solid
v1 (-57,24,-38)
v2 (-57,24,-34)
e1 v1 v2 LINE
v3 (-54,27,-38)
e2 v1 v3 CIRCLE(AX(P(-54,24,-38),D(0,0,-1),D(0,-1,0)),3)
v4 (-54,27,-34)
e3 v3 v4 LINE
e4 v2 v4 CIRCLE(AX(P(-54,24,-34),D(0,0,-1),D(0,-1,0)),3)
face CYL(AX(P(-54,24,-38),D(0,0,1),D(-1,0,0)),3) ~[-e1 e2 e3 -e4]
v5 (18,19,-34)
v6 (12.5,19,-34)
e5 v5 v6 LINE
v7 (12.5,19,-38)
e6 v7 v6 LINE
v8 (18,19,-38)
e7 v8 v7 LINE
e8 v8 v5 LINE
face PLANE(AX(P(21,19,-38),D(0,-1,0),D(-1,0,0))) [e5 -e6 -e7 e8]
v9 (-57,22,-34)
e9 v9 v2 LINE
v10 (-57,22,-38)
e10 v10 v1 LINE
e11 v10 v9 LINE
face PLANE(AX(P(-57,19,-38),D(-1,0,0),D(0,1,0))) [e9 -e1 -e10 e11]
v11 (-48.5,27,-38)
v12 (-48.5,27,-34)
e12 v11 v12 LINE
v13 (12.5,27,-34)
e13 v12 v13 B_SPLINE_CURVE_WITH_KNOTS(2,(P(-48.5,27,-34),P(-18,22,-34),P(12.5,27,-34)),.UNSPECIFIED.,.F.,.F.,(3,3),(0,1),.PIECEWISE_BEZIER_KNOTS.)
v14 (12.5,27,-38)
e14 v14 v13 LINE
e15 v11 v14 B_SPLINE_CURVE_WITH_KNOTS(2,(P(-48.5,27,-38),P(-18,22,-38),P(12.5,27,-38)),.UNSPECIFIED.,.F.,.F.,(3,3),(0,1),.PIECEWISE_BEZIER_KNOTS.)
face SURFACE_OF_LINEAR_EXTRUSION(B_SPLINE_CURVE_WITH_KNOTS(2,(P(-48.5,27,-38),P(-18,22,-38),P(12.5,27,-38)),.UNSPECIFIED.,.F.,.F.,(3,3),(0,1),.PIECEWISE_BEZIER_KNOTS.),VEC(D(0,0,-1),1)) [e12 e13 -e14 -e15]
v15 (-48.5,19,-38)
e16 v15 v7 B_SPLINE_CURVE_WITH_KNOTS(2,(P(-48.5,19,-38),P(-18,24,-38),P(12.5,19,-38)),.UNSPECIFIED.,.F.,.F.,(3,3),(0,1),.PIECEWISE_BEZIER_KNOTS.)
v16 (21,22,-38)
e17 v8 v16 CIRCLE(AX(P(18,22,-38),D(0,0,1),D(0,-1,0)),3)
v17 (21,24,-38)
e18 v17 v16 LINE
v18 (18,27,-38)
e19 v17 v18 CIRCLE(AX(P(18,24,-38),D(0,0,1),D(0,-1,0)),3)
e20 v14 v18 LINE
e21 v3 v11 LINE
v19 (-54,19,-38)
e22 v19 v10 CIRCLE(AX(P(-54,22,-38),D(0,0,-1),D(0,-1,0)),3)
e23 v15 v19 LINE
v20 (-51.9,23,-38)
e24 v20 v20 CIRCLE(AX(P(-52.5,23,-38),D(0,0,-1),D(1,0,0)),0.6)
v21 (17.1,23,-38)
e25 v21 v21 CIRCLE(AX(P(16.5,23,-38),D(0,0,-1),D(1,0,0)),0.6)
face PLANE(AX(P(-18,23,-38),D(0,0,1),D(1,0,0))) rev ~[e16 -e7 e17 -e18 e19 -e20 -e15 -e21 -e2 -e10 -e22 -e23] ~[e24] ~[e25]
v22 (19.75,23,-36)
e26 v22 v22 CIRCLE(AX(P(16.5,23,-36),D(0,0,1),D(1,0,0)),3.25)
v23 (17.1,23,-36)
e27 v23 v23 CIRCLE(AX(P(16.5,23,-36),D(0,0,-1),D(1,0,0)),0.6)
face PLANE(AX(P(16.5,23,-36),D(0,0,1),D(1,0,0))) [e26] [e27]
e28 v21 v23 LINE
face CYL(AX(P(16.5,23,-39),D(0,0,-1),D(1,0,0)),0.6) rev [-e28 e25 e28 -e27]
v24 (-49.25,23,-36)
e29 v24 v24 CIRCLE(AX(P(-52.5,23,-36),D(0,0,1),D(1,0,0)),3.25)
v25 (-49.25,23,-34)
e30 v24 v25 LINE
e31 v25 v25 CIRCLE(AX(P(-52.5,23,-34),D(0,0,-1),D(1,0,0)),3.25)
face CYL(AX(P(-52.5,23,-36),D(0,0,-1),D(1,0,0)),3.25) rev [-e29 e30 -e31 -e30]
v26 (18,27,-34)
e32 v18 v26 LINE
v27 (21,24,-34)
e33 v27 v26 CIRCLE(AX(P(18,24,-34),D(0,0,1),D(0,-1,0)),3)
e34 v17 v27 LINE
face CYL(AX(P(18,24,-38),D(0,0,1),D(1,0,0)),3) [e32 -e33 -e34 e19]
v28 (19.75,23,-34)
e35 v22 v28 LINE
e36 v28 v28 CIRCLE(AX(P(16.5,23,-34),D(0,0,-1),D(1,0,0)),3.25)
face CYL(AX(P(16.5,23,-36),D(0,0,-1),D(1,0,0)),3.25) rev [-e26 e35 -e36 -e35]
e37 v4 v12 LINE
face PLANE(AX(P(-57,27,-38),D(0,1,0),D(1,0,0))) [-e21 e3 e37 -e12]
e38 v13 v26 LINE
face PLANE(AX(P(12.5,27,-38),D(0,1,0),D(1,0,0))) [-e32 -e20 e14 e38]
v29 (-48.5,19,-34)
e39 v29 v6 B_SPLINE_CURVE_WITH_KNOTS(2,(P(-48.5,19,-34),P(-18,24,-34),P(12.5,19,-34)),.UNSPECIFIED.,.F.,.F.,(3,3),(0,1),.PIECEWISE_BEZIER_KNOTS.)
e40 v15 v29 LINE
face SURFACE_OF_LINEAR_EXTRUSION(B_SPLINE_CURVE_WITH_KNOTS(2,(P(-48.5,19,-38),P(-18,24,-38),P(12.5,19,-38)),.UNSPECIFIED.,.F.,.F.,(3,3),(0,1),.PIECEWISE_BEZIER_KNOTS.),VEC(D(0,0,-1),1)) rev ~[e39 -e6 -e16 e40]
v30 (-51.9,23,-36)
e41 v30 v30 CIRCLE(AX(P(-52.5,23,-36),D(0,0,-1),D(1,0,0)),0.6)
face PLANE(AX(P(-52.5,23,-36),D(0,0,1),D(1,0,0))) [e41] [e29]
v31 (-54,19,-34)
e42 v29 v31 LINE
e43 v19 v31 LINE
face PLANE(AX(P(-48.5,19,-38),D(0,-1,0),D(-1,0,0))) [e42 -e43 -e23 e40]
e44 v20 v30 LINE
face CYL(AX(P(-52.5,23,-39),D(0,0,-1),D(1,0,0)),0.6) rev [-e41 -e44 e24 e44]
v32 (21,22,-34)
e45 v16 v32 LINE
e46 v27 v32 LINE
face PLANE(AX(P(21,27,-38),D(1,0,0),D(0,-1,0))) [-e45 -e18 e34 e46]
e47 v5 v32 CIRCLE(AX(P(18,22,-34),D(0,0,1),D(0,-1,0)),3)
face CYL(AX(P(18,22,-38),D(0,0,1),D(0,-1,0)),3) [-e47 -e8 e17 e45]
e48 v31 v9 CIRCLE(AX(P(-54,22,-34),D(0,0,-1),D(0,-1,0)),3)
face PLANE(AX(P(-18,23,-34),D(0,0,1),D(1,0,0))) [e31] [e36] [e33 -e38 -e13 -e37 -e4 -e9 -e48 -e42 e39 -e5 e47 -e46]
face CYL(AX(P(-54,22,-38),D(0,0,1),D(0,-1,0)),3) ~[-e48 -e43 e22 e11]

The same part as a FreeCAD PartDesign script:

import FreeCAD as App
import Part
import Sketcher
from FreeCAD import Vector
Q = App.Units.Quantity


def edges_at(feature, points):
    """Names of the edges that pass closest to the given points."""
    edges = feature.Shape.Edges
    near = lambda p: min(range(len(edges)), key=lambda i: edges[i].distToShape(Part.Vertex(*p))[0])
    return sorted({f"Edge{near(p) + 1}" for p in points})

doc = App.newDocument("Part")
body = doc.addObject("PartDesign::Body", "Body")

sketch1 = body.newObject("Sketcher::SketchObject", "Sketch")
sketch1.AttachmentSupport = (doc.getObject("XY_Plane"), [""])
sketch1.MapMode = "FlatFace"
sketch1.AttachmentOffset = App.Placement(Vector(0, 0, -36), App.Rotation())
sketch1.addGeometry(Part.Circle(Vector(-52.5, 23, 0), Vector(0, 0, 1), 3.2), False)
sketch1.addConstraint(Sketcher.Constraint("Diameter", 0, Q("6.5 mm")))
sketch1.addConstraint(Sketcher.Constraint("DistanceY", -1, 1, 0, 3, Q("23 mm")))
sketch1.addConstraint(Sketcher.Constraint("DistanceX", 0, 3, -1, 1, Q("52.5 mm")))
pad1 = body.newObject("PartDesign::Pad", "Pad")
pad1.Profile = sketch1
pad1.Length = 3.5
body2 = doc.addObject("PartDesign::Body", "Body001")

sketch2 = body2.newObject("Sketcher::SketchObject", "Sketch001")
sketch2.AttachmentSupport = (doc.getObject("XY_Plane001"), [""])
sketch2.MapMode = "FlatFace"
sketch2.AttachmentOffset = App.Placement(Vector(0, 0, -39), App.Rotation())
sketch2.addGeometry(Part.Circle(Vector(16.5, 23, 0), Vector(0, 0, 1), 0.6), False)
sketch2.addConstraint(Sketcher.Constraint("Diameter", 0, Q("1.2 mm")))
sketch2.addConstraint(Sketcher.Constraint("DistanceY", -1, 1, 0, 3, Q("23 mm")))
sketch2.addConstraint(Sketcher.Constraint("DistanceX", -1, 1, 0, 3, Q("16.5 mm")))
pad2 = body2.newObject("PartDesign::Pad", "Pad001")
pad2.Profile = sketch2
pad2.Length = 9.5
body3 = doc.addObject("PartDesign::Body", "Body002")

sketch3 = body3.newObject("Sketcher::SketchObject", "Sketch002")
sketch3.AttachmentSupport = (doc.getObject("XY_Plane002"), [""])
sketch3.MapMode = "FlatFace"
sketch3.AttachmentOffset = App.Placement(Vector(0, 0, -39), App.Rotation())
sketch3.addGeometry(Part.Circle(Vector(-52.5, 23, 0), Vector(0, 0, 1), 0.6), False)
sketch3.addConstraint(Sketcher.Constraint("Diameter", 0, Q("1.2 mm")))
sketch3.addConstraint(Sketcher.Constraint("DistanceY", -1, 1, 0, 3, Q("23 mm")))
sketch3.addConstraint(Sketcher.Constraint("DistanceX", 0, 3, -1, 1, Q("52.5 mm")))
pad3 = body3.newObject("PartDesign::Pad", "Pad002")
pad3.Profile = sketch3
pad3.Length = 9.5
body4 = doc.addObject("PartDesign::Body", "Body003")
body4.AllowCompound = True

sketch4 = body4.newObject("Sketcher::SketchObject", "Sketch003")
sketch4.AttachmentSupport = (doc.getObject("XY_Plane003"), [""])
sketch4.MapMode = "FlatFace"
sketch4.AttachmentOffset = App.Placement(Vector(0, 0, -36), App.Rotation())
sketch4.addGeometry(Part.Circle(Vector(16.5, 23, 0), Vector(0, 0, 1), 3.2), False)
sketch4.addConstraint(Sketcher.Constraint("Diameter", 0, Q("6.5 mm")))
sketch4.addConstraint(Sketcher.Constraint("DistanceY", -1, 1, 0, 3, Q("23 mm")))
sketch4.addConstraint(Sketcher.Constraint("DistanceX", -1, 1, 0, 3, Q("16.5 mm")))
pad4 = body4.newObject("PartDesign::Pad", "Pad003")
pad4.Profile = sketch4
pad4.Length = 3.5
doc.recompute()

boolean = body4.newObject("PartDesign::Boolean", "Boolean")
boolean.Type = "Fuse"
boolean.addObjects([body])
doc.recompute()

boolean2 = body4.newObject("PartDesign::Boolean", "Boolean001")
boolean2.Type = "Fuse"
boolean2.addObjects([body2])
doc.recompute()

boolean3 = body4.newObject("PartDesign::Boolean", "Boolean002")
boolean3.Type = "Fuse"
boolean3.addObjects([body3])
body5 = doc.addObject("PartDesign::Body", "Body004")

sketch5 = body5.newObject("Sketcher::SketchObject", "Sketch004")
sketch5.AttachmentSupport = (doc.getObject("XY_Plane004"), [""])
sketch5.MapMode = "FlatFace"
sketch5.addGeometry(Part.BSplineCurve([Vector(-48.5, 19, 0), Vector(-18, 24, 0), Vector(12.5, 19, 0)], [3, 3], [0, 1], False, 2, [1, 1, 1], False), False)
sketch5.addGeometry(Part.LineSegment(Vector(12.5, 19, 0), Vector(21, 19, 0)), False)
sketch5.addGeometry(Part.LineSegment(Vector(21, 19, 0), Vector(21, 27, 0)), False)
sketch5.addGeometry(Part.LineSegment(Vector(21, 27, 0), Vector(12.5, 27, 0)), False)
sketch5.addGeometry(Part.BSplineCurve([Vector(-48.5, 27, 0), Vector(-18, 22, 0), Vector(12.5, 27, 0)], [3, 3], [0, 1], False, 2, [1, 1, 1], False), False)
sketch5.addGeometry(Part.LineSegment(Vector(-48.5, 27, 0), Vector(-57, 27, 0)), False)
sketch5.addGeometry(Part.LineSegment(Vector(-57, 27, 0), Vector(-57, 19, 0)), False)
sketch5.addGeometry(Part.LineSegment(Vector(-57, 19, 0), Vector(-48.5, 19, 0)), False)
sketch5.addConstraint(Sketcher.Constraint("Block", 0))
sketch5.addConstraint(Sketcher.Constraint("Block", 4))
sketch5.addConstraint(Sketcher.Constraint("Coincident", 0, 2, 1, 1))
sketch5.addConstraint(Sketcher.Constraint("Coincident", 1, 2, 2, 1))
sketch5.addConstraint(Sketcher.Constraint("Coincident", 2, 2, 3, 1))
sketch5.addConstraint(Sketcher.Constraint("Coincident", 3, 2, 4, 2))
sketch5.addConstraint(Sketcher.Constraint("Coincident", 4, 1, 5, 1))
sketch5.addConstraint(Sketcher.Constraint("Coincident", 5, 2, 6, 1))
sketch5.addConstraint(Sketcher.Constraint("Coincident", 6, 2, 7, 1))
sketch5.addConstraint(Sketcher.Constraint("Coincident", 7, 2, 0, 1))
sketch5.addConstraint(Sketcher.Constraint("Horizontal", 1))
sketch5.addConstraint(Sketcher.Constraint("Vertical", 2))
sketch5.addConstraint(Sketcher.Constraint("Horizontal", 3))
sketch5.addConstraint(Sketcher.Constraint("Horizontal", 5))
sketch5.addConstraint(Sketcher.Constraint("Vertical", 6))
sketch5.addConstraint(Sketcher.Constraint("Horizontal", 7))
sketch5.addConstraint(Sketcher.Constraint("Equal", 3, 5))
sketch5.addConstraint(Sketcher.Constraint("DistanceX", 1, 1, 1, 2, Q("8.5 mm")))
pad5 = body5.newObject("PartDesign::Pad", "Pad004")
pad5.Profile = sketch5
pad5.Length = 4
body6 = doc.addObject("PartDesign::Body", "Body005")
doc.recompute()

body5.Placement = App.Placement(Vector(0, 0, -38), App.Rotation(Vector(0, 0, 1), 0))
boolean4 = body6.newObject("PartDesign::Boolean", "Boolean003")
boolean4.Type = "Fuse"
boolean4.addObjects([body5])
doc.recompute()

boolean5 = body6.newObject("PartDesign::Boolean", "Boolean004")
boolean5.Type = "Cut"
boolean5.addObjects([body4])
doc.recompute()

fillet = body6.newObject("PartDesign::Fillet", "Fillet")
fillet.Base = (boolean5, edges_at(boolean5, [
    (-57, 19, -36),
    (21, 19, -36),
    (-57, 27, -36),
    (21, 27, -36),
]))
fillet.Radius = 3

doc.recompute()
